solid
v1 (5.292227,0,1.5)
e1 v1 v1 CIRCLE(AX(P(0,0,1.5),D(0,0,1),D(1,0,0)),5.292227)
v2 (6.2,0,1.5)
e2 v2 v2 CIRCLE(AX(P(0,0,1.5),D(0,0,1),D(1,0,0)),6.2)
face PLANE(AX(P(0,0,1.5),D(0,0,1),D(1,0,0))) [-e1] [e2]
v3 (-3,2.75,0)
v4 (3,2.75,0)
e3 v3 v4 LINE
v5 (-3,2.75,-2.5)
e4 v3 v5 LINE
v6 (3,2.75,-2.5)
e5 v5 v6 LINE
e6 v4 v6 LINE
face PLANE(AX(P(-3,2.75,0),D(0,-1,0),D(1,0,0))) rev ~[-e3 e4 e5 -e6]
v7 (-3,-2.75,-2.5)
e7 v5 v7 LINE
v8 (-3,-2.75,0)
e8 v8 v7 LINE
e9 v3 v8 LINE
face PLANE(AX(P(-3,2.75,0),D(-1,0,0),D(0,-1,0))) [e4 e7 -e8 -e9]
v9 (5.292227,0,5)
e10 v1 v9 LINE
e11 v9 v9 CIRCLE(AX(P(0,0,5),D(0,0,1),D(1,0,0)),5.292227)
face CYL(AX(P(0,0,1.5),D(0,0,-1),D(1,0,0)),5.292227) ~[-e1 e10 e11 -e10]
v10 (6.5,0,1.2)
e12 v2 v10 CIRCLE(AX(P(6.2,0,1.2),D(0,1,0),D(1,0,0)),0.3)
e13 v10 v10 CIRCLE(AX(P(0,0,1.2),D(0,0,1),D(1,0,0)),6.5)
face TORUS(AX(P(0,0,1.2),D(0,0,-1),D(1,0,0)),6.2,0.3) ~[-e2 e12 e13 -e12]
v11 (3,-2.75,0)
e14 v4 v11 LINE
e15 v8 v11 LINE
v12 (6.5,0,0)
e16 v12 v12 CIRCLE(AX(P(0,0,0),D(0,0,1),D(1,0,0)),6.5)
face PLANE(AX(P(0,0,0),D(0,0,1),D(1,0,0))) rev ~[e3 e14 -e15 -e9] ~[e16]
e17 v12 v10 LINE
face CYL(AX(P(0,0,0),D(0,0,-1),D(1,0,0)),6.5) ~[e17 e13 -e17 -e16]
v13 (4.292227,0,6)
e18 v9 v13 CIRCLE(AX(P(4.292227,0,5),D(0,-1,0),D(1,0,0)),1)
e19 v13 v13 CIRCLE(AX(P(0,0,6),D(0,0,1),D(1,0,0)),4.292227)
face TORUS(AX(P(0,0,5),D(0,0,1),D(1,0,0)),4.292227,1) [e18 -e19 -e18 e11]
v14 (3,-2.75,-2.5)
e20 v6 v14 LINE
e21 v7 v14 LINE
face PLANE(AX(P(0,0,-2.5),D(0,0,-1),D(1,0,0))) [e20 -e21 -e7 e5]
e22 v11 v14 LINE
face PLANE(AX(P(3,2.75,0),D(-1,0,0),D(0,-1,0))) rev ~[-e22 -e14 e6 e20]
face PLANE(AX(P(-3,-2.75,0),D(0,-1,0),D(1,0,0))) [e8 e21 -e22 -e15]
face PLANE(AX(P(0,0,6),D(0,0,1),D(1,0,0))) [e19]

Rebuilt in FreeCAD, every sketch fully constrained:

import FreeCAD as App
import Part
import Sketcher

V = App.Vector


def edges_at(feature, points):
    """Names of the edges that pass closest to the given points."""
    edges = feature.Shape.Edges
    near = lambda p: min(range(len(edges)), key=lambda i: edges[i].distToShape(Part.Vertex(*p))[0])
    return sorted({f"Edge{near(p) + 1}" for p in points})


def add_polygon(sketch, points):
    """Adds a closed chain of lines whose ends are joined by coincident constraints."""
    first, n = sketch.GeometryCount, len(points)
    for a, b in zip(points, points[1:] + points[:1]):
        sketch.addGeometry(Part.LineSegment(App.Vector(*a, 0), App.Vector(*b, 0)), False)
    for i in range(n):
        sketch.addConstraint(Sketcher.Constraint("Coincident", first + i, 2, first + (i + 1) % n, 1))

doc = App.newDocument("Part")
params = doc.addObject("Spreadsheet::Sheet", "Params")
for row, (alias, value) in enumerate([
    ("sketch1_diameter", "13 mm"),
    ("pad1_length", "1.5 mm"),
    ("pad2_length", "4.5 mm"),
    ("fillet_radius", "1 mm"),
    ("fillet2_radius", "0.3 mm"),
    ("sketch3_width", "6 mm"),
    ("sketch3_height", "5.5 mm"),
    ("pad3_length", "2.5 mm"),
], start=1):
    params.set(f"A{row}", alias)
    params.set(f"B{row}", "=" + value)
    params.setAlias(f"B{row}", alias)

body = doc.addObject("PartDesign::Body", "Body")

sketch1 = body.newObject("Sketcher::SketchObject", "Sketch")
sketch1.AttachmentSupport = (doc.getObject("XY_Plane"), [""])
sketch1.MapMode = "FlatFace"
sketch1.addGeometry(Part.Circle(V(0, 0, 0), V(0, 0, 1), 6.5), False)
sketch1.addConstraint([
    Sketcher.Constraint("Coincident", 0, 3, -1, 1),
    Sketcher.Constraint("Diameter", 0, 13.0),
])
sketch1.setExpression("Constraints[1]", "Params.sketch1_diameter")
pad1 = body.newObject("PartDesign::Pad", "Pad")
pad1.Profile = sketch1
pad1.setExpression("Length", "Params.pad1_length")

sketch2 = body.newObject("Sketcher::SketchObject", "Sketch001")
sketch2.AttachmentSupport = (doc.getObject("XY_Plane"), [""])
sketch2.MapMode = "FlatFace"
sketch2.AttachmentOffset = App.Placement(V(0, 0, 1.5), App.Rotation())
sketch2.addGeometry(Part.Circle(V(0, 0, 0), V(0, 0, 1), 5.292227), False)
sketch2.addConstraint([
    Sketcher.Constraint("Coincident", 0, 3, -1, 1),
    Sketcher.Constraint("Diameter", 0, 10.584454),
])
pad2 = body.newObject("PartDesign::Pad", "Pad001")
pad2.Profile = sketch2
pad2.setExpression("Length", "Params.pad2_length")
doc.recompute()

fillet = body.newObject("PartDesign::Fillet", "Fillet")
fillet.Base = (pad2, edges_at(pad2, [(-5.292, 0, 6)]))
fillet.setExpression("Radius", "Params.fillet_radius")
doc.recompute()

fillet2 = body.newObject("PartDesign::Fillet", "Fillet001")
fillet2.Base = (fillet, edges_at(fillet, [(-6.5, 0, 1.5)]))
fillet2.setExpression("Radius", "Params.fillet2_radius")

sketch3 = body.newObject("Sketcher::SketchObject", "Sketch002")
sketch3.AttachmentSupport = (doc.getObject("XY_Plane"), [""])
sketch3.MapMode = "FlatFace"
add_polygon(sketch3, [(-3, -2.75), (-3, 2.75), (3, 2.75), (3, -2.75)])
sketch3.addConstraint([
    Sketcher.Constraint("Vertical", 0),
    Sketcher.Constraint("Horizontal", 1),
    Sketcher.Constraint("Vertical", 2),
    Sketcher.Constraint("Horizontal", 3),
    Sketcher.Constraint("Symmetric", 0, 2, 2, 2, -1, 1),
    Sketcher.Constraint("DistanceX", 1, 1, 1, 2, 6.0),
    Sketcher.Constraint("DistanceY", 0, 1, 0, 2, 5.5),
])
sketch3.setExpression("Constraints[9]", "Params.sketch3_width")
sketch3.setExpression("Constraints[10]", "Params.sketch3_height")
pad3 = body.newObject("PartDesign::Pad", "Pad002")
pad3.Profile = sketch3
pad3.setExpression("Length", "Params.pad3_length")
pad3.Reversed = True

doc.recompute()
